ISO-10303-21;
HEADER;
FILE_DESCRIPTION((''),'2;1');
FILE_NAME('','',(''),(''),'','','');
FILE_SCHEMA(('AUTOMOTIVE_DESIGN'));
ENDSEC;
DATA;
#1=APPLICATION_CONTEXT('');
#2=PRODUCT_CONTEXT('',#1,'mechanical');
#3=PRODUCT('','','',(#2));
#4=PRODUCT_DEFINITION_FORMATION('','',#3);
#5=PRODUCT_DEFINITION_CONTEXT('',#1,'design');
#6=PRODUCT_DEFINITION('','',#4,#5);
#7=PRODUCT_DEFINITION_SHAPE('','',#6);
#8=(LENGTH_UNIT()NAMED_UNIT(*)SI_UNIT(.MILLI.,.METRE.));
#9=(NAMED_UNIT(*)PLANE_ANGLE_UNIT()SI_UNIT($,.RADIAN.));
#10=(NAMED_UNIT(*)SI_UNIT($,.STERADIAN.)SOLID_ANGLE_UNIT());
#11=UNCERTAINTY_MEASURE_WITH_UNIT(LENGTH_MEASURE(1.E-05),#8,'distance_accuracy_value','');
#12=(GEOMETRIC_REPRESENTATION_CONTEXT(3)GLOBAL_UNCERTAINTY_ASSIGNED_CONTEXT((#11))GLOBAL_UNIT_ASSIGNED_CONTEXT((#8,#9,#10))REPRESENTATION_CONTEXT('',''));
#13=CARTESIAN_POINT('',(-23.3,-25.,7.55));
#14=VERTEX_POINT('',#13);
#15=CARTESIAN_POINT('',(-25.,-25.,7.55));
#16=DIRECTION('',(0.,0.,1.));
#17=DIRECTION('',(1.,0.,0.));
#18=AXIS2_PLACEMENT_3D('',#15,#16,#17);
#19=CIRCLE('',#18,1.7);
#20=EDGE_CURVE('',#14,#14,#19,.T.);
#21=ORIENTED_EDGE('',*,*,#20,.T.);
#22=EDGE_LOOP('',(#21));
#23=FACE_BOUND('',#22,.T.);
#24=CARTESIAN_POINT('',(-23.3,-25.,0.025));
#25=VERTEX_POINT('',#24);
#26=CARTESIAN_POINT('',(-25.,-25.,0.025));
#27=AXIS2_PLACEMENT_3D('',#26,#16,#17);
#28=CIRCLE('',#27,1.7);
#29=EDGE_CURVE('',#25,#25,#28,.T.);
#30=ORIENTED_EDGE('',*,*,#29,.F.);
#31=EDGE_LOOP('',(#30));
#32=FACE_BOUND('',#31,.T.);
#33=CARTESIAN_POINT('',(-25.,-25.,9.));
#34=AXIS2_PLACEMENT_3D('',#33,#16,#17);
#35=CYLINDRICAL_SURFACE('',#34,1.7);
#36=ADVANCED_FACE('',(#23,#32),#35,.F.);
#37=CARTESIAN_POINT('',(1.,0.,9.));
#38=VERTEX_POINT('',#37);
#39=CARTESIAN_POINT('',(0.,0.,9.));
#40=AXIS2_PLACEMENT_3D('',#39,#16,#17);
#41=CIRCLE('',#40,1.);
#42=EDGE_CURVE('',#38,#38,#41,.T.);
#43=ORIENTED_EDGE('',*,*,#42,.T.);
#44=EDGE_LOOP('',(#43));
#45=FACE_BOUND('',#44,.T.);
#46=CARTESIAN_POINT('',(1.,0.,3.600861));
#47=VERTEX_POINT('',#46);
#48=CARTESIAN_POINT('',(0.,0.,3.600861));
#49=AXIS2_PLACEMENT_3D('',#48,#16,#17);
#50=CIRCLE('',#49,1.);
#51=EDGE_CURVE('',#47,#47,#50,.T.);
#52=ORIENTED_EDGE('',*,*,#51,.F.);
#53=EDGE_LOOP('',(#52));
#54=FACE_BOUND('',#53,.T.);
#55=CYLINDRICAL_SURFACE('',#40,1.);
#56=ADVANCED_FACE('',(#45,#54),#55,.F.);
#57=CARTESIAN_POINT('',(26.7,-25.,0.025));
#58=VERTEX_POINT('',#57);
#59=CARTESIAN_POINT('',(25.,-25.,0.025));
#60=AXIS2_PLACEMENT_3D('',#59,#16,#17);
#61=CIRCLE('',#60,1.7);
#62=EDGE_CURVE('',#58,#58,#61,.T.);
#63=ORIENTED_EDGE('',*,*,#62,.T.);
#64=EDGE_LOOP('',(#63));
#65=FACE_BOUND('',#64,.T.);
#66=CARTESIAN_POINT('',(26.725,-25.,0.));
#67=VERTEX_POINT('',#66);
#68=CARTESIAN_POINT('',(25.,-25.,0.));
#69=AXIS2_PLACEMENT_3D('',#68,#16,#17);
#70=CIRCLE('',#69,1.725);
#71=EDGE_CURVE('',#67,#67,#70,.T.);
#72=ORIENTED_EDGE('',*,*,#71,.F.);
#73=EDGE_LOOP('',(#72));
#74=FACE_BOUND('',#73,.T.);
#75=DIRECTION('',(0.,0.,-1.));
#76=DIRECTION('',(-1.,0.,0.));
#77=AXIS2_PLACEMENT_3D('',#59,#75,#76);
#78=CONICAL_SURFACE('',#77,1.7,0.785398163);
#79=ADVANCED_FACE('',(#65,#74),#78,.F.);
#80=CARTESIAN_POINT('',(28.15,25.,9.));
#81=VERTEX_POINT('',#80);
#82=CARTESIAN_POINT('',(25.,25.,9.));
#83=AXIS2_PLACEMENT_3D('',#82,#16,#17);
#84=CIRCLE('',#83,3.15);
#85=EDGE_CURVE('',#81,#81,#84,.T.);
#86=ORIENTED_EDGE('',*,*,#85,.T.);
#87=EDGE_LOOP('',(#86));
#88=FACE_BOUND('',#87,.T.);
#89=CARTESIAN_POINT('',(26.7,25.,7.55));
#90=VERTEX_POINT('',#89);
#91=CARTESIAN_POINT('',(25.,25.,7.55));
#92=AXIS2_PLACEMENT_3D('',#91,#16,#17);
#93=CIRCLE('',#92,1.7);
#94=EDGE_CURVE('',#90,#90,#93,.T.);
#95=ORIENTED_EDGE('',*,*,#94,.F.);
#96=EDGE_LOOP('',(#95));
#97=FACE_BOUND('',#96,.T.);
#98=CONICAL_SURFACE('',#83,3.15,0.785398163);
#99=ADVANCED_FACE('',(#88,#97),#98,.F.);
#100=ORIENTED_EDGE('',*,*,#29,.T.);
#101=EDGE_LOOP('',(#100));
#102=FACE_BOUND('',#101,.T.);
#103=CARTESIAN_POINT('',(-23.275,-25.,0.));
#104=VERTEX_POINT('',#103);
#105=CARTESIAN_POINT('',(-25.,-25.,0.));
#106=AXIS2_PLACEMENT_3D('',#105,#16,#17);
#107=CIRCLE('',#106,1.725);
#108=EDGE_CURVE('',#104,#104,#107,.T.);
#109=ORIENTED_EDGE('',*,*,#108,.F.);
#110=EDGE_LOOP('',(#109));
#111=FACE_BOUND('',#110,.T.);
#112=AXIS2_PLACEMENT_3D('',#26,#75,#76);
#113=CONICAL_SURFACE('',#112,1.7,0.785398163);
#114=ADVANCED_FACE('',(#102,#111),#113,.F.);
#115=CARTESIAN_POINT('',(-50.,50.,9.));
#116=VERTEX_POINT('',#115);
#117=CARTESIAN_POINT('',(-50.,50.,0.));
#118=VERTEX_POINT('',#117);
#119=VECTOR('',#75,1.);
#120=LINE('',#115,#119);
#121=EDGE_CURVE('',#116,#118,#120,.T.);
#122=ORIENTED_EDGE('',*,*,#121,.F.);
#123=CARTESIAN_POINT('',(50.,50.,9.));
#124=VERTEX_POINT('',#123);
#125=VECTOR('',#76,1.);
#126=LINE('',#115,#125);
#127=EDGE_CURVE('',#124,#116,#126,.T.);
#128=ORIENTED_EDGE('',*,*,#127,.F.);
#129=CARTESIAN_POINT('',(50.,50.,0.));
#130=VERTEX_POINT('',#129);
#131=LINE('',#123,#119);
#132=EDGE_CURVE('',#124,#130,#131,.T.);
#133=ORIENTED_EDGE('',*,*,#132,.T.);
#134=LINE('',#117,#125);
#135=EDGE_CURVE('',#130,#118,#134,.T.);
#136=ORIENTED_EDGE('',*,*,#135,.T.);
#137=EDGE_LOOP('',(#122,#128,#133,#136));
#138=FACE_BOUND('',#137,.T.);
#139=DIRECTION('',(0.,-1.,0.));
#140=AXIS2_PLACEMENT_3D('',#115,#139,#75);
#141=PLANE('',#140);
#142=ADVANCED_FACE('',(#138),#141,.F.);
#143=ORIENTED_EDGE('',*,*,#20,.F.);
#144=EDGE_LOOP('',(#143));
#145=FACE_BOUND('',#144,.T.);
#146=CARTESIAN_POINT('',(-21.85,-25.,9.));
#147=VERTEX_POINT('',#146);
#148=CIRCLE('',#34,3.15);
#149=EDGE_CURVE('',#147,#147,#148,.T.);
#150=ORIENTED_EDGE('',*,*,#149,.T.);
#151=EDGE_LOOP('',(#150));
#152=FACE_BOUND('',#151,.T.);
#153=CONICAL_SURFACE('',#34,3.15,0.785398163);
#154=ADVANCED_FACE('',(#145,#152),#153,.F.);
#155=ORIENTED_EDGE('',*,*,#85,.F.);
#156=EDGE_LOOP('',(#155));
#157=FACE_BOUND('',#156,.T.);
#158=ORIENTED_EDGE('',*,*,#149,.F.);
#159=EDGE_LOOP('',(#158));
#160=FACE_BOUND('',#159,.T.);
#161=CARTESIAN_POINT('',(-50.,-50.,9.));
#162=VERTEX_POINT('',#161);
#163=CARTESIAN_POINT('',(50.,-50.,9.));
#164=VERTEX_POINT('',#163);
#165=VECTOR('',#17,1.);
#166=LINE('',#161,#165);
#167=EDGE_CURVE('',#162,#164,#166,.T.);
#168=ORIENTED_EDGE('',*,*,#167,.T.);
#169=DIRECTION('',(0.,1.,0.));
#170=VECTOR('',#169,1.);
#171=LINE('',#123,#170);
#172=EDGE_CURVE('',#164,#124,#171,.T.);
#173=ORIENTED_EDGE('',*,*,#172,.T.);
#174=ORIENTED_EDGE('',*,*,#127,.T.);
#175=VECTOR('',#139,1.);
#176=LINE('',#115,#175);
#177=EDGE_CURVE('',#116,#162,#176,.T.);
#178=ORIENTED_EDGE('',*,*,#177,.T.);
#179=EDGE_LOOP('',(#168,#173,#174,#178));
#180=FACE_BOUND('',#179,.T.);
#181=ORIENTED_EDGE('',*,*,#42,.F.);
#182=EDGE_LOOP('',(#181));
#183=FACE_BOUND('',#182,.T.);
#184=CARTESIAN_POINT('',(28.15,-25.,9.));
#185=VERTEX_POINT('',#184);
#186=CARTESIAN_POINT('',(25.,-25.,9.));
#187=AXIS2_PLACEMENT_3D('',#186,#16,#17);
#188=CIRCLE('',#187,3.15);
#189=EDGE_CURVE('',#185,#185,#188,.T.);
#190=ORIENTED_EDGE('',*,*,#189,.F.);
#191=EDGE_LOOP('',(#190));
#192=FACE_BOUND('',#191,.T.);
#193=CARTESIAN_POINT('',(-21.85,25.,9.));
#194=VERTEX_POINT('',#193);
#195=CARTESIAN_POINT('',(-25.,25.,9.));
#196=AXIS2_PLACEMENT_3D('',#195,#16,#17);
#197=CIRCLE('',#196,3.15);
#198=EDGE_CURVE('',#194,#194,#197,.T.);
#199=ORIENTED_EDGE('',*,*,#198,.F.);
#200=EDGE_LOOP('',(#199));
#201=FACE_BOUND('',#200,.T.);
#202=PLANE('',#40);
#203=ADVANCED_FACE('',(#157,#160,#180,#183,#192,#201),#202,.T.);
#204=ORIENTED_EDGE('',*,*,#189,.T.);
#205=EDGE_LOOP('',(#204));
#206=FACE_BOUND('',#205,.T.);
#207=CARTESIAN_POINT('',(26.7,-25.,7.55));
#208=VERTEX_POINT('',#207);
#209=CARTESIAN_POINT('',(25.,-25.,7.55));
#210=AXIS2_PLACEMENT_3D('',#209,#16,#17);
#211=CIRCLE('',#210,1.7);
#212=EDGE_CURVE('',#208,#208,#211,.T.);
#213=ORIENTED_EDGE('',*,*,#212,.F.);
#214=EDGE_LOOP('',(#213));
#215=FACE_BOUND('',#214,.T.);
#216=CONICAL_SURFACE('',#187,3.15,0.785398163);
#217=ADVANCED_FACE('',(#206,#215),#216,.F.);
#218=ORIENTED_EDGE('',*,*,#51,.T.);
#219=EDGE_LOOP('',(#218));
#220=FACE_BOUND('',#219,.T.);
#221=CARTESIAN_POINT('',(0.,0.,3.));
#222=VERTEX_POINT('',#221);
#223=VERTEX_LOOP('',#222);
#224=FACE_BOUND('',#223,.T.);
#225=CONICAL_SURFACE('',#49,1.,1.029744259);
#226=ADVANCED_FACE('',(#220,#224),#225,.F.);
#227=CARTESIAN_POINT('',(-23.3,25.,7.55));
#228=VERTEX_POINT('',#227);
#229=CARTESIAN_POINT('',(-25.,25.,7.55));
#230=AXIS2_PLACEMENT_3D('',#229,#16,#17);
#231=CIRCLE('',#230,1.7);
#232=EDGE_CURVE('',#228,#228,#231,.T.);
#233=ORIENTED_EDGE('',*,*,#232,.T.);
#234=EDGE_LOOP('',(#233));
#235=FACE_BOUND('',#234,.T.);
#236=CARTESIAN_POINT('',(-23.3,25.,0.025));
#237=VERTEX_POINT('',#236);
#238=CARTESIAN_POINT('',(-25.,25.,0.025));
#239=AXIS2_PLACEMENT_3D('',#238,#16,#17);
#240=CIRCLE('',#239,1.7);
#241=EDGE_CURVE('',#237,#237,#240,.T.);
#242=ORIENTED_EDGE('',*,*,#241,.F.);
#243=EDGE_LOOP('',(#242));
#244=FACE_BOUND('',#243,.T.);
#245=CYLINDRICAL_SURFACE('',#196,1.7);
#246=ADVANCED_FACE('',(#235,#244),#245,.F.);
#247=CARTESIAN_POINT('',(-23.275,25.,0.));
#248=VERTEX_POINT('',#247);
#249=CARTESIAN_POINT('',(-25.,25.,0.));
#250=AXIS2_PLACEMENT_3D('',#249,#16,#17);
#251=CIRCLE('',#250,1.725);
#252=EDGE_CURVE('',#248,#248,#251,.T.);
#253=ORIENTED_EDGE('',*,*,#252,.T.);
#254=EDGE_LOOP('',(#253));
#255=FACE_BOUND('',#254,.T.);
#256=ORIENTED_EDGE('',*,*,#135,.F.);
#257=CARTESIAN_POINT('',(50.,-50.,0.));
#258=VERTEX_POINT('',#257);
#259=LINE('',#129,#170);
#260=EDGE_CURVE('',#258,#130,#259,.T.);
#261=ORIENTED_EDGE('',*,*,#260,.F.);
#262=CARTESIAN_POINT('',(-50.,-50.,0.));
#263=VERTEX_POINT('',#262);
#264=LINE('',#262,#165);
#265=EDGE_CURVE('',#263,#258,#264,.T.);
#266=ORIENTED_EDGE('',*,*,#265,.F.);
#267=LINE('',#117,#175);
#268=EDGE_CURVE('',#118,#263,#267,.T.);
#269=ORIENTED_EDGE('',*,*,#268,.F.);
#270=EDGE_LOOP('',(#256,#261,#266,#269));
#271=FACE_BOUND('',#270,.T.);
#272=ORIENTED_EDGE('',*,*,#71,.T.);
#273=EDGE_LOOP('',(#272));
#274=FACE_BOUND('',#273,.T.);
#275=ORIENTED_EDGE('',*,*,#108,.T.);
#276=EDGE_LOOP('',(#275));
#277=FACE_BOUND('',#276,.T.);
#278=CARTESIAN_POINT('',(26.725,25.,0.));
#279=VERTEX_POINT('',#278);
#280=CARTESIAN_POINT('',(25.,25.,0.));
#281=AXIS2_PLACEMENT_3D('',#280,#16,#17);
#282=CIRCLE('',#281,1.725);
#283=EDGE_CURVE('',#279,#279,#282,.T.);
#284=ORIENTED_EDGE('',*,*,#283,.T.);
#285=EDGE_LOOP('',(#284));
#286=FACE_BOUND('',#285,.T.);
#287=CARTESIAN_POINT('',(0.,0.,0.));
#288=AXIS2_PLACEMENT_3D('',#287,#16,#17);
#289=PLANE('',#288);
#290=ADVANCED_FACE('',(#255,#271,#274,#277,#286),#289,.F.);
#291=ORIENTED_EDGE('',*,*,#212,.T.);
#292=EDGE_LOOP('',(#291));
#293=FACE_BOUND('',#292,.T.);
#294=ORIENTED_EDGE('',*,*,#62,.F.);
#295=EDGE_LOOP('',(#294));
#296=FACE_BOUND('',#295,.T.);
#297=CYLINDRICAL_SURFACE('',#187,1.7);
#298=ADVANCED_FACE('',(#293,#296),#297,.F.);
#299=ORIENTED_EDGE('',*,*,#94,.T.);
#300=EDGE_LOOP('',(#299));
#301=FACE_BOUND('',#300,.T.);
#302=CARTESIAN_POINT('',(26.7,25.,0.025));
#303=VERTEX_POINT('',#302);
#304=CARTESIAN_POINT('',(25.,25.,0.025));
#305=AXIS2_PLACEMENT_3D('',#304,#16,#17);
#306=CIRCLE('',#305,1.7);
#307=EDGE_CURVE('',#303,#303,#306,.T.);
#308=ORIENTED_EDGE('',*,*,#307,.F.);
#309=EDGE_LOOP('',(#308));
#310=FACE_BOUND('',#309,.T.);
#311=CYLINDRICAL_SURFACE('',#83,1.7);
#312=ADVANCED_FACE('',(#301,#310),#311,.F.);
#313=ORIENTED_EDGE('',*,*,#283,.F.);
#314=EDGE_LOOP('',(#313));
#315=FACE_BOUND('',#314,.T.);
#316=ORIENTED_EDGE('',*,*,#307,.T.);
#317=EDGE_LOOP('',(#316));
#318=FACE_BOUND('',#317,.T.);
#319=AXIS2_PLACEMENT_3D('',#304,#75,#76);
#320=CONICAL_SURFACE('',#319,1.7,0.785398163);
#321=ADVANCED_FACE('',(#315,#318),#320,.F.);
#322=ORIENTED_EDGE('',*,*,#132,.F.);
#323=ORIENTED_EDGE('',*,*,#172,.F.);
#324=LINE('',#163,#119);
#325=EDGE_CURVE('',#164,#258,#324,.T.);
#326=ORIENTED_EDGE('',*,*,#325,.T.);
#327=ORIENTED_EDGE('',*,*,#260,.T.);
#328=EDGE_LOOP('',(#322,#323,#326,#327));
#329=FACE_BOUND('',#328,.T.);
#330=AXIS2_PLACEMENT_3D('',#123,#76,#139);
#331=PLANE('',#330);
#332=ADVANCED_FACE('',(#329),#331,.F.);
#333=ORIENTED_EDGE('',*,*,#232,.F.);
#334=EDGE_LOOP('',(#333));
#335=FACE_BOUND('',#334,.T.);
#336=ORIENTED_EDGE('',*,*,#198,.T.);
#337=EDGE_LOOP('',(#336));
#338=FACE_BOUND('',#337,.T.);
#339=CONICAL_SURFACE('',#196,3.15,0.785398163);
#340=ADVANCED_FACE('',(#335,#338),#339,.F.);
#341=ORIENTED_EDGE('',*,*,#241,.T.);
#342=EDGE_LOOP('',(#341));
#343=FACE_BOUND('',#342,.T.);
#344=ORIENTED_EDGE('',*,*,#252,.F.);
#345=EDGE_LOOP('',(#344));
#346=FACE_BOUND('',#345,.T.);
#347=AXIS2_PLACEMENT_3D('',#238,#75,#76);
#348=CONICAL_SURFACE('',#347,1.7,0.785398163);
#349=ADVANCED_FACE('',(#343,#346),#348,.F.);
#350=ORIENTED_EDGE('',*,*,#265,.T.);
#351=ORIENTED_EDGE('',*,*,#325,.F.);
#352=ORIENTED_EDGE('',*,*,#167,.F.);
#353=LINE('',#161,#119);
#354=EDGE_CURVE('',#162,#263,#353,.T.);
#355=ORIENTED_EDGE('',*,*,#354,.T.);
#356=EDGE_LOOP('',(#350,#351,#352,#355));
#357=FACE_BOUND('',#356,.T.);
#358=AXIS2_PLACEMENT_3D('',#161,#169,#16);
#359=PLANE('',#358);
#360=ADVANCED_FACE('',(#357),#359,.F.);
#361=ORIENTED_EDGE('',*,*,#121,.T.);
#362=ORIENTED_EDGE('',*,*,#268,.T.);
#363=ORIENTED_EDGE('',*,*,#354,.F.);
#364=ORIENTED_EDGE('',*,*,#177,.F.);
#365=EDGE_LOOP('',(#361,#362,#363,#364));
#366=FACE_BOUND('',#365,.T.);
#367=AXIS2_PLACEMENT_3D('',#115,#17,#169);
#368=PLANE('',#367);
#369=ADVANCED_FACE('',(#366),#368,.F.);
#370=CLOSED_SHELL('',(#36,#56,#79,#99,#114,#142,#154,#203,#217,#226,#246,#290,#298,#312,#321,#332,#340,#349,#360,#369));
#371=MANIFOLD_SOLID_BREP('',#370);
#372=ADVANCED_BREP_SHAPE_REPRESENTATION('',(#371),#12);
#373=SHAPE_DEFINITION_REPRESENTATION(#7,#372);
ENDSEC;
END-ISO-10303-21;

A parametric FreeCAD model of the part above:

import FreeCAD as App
import Part
import Sketcher

V = App.Vector
Q = App.Units.Quantity


def add_polygon(sketch, points):
    """Adds a closed chain of lines whose ends are joined by coincident constraints."""
    first, n = sketch.GeometryCount, len(points)
    for a, b in zip(points, points[1:] + points[:1]):
        sketch.addGeometry(Part.LineSegment(App.Vector(*a, 0), App.Vector(*b, 0)), False)
    for i in range(n):
        sketch.addConstraint(Sketcher.Constraint("Coincident", first + i, 2, first + (i + 1) % n, 1))

doc = App.newDocument("Part")
body = doc.addObject("PartDesign::Body", "Body")

sketch1 = doc.addObject("Sketcher::SketchObject", "Sketch")
body.addObject(sketch1)
sketch1.AttachmentSupport = (doc.XY_Plane, [""])
sketch1.MapMode = "FlatFace"
add_polygon(sketch1, [(-50, 50), (-50, -50), (50, -50), (50, 50)])
sketch1.addConstraint(Sketcher.Constraint("Vertical", 0))
sketch1.addConstraint(Sketcher.Constraint("Horizontal", 1))
sketch1.addConstraint(Sketcher.Constraint("Vertical", 2))
sketch1.addConstraint(Sketcher.Constraint("Horizontal", 3))
sketch1.addConstraint(Sketcher.Constraint("Symmetric", 0, 2, 2, 2, -1, 1))
sketch1.addConstraint(Sketcher.Constraint("Equal", 3, 0))
sketch1.addConstraint(Sketcher.Constraint("DistanceX", 1, 1, 1, 2, Q("100 mm")))
pad1 = doc.addObject("PartDesign::Pad", "Pad")
body.addObject(pad1)
pad1.Profile = sketch1
pad1.Length = 9

sketch2 = doc.addObject("Sketcher::SketchObject", "Sketch001")
body.addObject(sketch2)
sketch2.AttachmentSupport = (doc.YZ_Plane, [""])
sketch2.MapMode = "FlatFace"
sketch2.AttachmentOffset = App.Placement(V(0, 0, -25), App.Rotation())
add_polygon(sketch2, [(25, 0), (25, 9), (21.85, 9), (23.3, 7.55), (23.3, 0.025), (23.275, 0)])
sketch2.addGeometry(Part.LineSegment(V(25, 9, 0), V(25, 0, 0)), True)
sketch2.addConstraint(Sketcher.Constraint("Vertical", 0))
sketch2.addConstraint(Sketcher.Constraint("Horizontal", 1))
sketch2.addConstraint(Sketcher.Constraint("Vertical", 3))
sketch2.addConstraint(Sketcher.Constraint("Horizontal", 5))
sketch2.addConstraint(Sketcher.Constraint("Vertical", 6))
sketch2.addConstraint(Sketcher.Constraint("Coincident", 6, 1, 0, 2))
sketch2.addConstraint(Sketcher.Constraint("PointOnObject", 4, 2, -1))
sketch2.addConstraint(Sketcher.Constraint("PointOnObject", 6, 2, -1))
sketch2.addConstraint(Sketcher.Constraint("Perpendicular", 2, 4))
sketch2.addConstraint(Sketcher.Constraint("DistanceY", 0, 1, 0, 2, Q("9 mm")))
sketch2.addConstraint(Sketcher.Constraint("Angle", 2, Q("-45 deg")))
sketch2.addConstraint(Sketcher.Constraint("DistanceX", -1, 1, 0, 2, Q("25 mm")))
sketch2.addConstraint(Sketcher.Constraint("DistanceX", 1, 2, 1, 1, Q("3.15 mm")))
sketch2.addConstraint(Sketcher.Constraint("DistanceX", -1, 1, 2, 2, Q("23.3 mm")))
sketch2.addConstraint(Sketcher.Constraint("DistanceX", 5, 1, 5, 2, Q("1.725 mm")))
groove = doc.addObject("PartDesign::Groove", "Groove")
body.addObject(groove)
groove.Profile = sketch2
groove.ReferenceAxis = (sketch2, ["Axis0"])
groove.Angle = 360
doc.recompute()

linearpattern = doc.addObject("PartDesign::LinearPattern", "LinearPattern")
body.addObject(linearpattern)
linearpattern.Originals = [groove]
linearpattern.Direction = (doc.X_Axis, [""])
linearpattern.Mode = "offset"
linearpattern.Offset = 50
linearpattern.Occurrences = 2
body.Tip = linearpattern
doc.recompute()

datumline = doc.addObject("PartDesign::Line", "DatumLine")
body.addObject(datumline)
datumline.Placement = App.Placement(V(0, 0, 0), App.Rotation(V(0, 0, 1), V(0.707106781, -0.707106781, 0)))
linearpattern2 = doc.addObject("PartDesign::LinearPattern", "LinearPattern001")
body.addObject(linearpattern2)
linearpattern2.Originals = [groove]
linearpattern2.Direction = (datumline, [""])
linearpattern2.Mode = "offset"
linearpattern2.Offset = 70.710678
linearpattern2.Occurrences = 2
body.Tip = linearpattern2
doc.recompute()

linearpattern3 = doc.addObject("PartDesign::LinearPattern", "LinearPattern002")
body.addObject(linearpattern3)
linearpattern3.Originals = [groove]
linearpattern3.Direction = (doc.Y_Axis, [""])
linearpattern3.Mode = "offset"
linearpattern3.Offset = 50
linearpattern3.Occurrences = 2
linearpattern3.Reversed = True
body.Tip = linearpattern3

sketch3 = doc.addObject("Sketcher::SketchObject", "Sketch002")
body.addObject(sketch3)
sketch3.AttachmentSupport = (doc.YZ_Plane, [""])
sketch3.MapMode = "FlatFace"
add_polygon(sketch3, [(0, 3), (0, 9), (-1, 9), (-1, 3.6)])
sketch3.addConstraint(Sketcher.Constraint("Vertical", 0))
sketch3.addConstraint(Sketcher.Constraint("Horizontal", 1))
sketch3.addConstraint(Sketcher.Constraint("Vertical", 2))
sketch3.addConstraint(Sketcher.Constraint("PointOnObject", 0, 2, -2))
sketch3.addConstraint(Sketcher.Constraint("DistanceX", 1, 2, 1, 1, Q("1 mm")))
sketch3.addConstraint(Sketcher.Constraint("DistanceY", 0, 1, 0, 2, Q("6 mm")))
sketch3.addConstraint(Sketcher.Constraint("Angle", 3, Q("-31 deg")))
sketch3.addConstraint(Sketcher.Constraint("DistanceY", -1, 1, 0, 2, Q("9 mm")))
groove2 = doc.addObject("PartDesign::Groove", "Groove001")
body.addObject(groove2)
groove2.Profile = sketch3
groove2.ReferenceAxis = (sketch3, ["V_Axis"])
groove2.Angle = 360

doc.recompute()
